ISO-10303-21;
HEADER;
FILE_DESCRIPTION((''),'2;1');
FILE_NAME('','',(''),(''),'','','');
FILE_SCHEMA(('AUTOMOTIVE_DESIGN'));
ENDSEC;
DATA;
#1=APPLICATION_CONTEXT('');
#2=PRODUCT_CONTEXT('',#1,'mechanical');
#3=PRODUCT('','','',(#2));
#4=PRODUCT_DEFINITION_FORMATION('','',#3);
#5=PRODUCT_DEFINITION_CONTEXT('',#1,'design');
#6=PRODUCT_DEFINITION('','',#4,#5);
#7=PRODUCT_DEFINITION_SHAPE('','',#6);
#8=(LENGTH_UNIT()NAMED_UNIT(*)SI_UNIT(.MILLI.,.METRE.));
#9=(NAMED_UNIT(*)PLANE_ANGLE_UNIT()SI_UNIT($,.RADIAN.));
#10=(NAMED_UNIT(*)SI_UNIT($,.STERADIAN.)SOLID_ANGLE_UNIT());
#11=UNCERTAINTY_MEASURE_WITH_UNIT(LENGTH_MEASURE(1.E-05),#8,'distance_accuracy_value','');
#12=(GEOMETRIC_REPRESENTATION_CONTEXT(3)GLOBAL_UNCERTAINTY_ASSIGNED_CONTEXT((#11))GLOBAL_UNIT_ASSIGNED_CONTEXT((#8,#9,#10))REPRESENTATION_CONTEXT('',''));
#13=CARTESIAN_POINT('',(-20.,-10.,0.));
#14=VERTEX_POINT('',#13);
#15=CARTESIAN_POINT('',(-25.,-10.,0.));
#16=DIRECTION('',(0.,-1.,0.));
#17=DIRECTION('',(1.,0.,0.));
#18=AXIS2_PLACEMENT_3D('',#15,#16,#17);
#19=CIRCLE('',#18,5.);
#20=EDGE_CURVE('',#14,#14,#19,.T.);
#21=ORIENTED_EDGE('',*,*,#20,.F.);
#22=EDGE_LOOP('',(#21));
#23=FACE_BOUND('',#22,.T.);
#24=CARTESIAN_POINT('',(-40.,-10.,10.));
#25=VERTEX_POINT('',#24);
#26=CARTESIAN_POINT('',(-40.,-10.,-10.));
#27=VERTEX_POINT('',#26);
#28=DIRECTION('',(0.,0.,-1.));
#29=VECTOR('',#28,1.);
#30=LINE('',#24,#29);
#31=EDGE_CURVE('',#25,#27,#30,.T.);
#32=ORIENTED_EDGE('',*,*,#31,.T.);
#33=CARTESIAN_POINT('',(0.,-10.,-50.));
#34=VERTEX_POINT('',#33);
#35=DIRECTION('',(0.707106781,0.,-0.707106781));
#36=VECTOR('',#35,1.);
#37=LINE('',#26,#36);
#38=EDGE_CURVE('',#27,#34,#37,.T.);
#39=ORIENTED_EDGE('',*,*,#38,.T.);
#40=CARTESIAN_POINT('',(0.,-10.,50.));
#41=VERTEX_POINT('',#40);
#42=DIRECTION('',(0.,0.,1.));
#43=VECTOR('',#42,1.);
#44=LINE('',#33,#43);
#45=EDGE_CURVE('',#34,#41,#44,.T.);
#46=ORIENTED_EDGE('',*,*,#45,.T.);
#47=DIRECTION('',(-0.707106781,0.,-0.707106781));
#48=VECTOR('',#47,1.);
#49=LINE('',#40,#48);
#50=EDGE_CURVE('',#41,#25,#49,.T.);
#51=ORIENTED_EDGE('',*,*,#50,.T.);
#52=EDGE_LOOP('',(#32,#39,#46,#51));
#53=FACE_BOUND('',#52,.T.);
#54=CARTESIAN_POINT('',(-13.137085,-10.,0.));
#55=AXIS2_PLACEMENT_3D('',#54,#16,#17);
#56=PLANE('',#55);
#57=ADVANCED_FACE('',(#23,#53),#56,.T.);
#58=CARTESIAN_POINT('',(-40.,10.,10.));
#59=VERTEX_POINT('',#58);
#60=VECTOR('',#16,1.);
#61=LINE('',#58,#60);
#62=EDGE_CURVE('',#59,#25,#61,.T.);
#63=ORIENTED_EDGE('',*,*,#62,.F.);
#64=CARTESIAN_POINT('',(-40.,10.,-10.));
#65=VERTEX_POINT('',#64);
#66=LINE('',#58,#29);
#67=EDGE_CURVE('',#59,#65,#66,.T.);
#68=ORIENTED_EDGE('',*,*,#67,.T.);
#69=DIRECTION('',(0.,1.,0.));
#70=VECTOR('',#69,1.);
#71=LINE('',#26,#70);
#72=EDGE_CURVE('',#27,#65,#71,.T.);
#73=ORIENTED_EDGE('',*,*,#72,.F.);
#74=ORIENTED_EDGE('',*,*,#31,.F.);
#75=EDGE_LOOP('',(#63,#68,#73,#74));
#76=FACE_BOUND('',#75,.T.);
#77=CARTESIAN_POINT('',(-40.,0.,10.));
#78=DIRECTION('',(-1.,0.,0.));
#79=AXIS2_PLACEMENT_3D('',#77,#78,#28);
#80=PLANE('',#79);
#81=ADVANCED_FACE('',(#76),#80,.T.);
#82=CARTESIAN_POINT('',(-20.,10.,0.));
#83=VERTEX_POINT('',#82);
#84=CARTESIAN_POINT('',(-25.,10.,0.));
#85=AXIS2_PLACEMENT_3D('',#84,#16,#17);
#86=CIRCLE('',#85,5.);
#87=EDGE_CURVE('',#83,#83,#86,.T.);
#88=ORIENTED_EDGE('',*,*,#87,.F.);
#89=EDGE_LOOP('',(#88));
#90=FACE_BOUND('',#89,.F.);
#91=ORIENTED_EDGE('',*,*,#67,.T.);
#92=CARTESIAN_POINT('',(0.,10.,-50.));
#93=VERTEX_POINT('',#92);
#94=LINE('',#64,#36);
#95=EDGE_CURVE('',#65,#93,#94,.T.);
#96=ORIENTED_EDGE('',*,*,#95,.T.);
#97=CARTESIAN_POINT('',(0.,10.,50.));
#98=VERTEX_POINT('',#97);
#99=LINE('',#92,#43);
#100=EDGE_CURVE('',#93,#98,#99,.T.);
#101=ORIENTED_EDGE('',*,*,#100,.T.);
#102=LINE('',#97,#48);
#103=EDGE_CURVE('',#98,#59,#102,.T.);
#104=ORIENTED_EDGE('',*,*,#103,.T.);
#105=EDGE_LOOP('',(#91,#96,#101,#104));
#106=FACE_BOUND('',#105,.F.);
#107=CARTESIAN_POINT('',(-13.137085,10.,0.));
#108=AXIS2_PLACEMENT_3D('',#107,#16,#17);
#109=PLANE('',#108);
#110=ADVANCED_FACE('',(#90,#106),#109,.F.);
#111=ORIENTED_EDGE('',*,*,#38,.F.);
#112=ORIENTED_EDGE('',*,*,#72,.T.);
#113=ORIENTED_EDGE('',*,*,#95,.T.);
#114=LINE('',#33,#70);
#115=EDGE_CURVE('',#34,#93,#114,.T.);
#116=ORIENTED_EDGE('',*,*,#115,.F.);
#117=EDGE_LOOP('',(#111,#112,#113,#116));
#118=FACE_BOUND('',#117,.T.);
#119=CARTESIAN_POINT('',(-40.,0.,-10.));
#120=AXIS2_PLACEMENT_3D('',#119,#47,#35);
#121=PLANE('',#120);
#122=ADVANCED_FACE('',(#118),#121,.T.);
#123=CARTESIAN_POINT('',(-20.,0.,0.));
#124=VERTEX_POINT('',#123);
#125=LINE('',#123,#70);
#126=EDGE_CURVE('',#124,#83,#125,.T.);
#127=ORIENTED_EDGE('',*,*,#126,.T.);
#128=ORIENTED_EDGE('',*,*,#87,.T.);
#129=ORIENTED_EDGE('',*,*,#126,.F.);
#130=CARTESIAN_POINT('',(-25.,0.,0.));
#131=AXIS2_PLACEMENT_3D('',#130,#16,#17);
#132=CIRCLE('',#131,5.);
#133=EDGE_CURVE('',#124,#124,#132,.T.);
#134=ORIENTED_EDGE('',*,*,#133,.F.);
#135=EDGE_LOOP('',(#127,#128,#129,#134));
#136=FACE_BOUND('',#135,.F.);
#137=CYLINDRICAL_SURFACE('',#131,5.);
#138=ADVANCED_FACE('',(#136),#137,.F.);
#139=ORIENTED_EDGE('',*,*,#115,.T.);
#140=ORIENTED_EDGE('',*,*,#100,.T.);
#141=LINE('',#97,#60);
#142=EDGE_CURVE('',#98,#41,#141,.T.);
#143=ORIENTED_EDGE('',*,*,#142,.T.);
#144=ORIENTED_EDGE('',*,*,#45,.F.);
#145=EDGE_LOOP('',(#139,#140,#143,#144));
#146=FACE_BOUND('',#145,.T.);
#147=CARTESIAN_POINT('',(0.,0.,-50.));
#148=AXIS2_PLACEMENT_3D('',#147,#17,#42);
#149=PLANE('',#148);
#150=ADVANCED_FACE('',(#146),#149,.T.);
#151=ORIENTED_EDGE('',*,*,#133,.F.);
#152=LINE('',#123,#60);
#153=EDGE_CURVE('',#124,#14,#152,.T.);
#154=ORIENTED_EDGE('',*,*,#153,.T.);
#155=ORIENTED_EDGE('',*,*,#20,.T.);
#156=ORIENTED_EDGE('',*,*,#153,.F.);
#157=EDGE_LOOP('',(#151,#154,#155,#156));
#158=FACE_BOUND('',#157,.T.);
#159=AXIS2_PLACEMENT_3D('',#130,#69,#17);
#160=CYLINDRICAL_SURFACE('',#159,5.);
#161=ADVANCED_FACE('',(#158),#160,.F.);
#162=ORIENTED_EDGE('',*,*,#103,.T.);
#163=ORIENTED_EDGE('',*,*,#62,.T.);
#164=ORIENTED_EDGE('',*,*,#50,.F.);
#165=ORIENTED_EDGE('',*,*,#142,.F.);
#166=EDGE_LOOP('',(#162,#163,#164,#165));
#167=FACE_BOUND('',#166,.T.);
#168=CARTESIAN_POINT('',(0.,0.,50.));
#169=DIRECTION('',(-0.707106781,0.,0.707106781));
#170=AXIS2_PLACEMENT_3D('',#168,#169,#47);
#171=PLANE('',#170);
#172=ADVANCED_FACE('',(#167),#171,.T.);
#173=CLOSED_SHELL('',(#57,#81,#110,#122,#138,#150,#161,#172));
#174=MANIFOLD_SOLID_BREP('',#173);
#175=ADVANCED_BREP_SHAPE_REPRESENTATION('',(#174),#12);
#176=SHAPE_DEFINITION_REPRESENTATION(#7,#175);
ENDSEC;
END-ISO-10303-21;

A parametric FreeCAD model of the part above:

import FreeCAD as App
import Part
import Sketcher
from FreeCAD import Vector
Q = App.Units.Quantity


def add_polygon(sketch, points):
    """Adds a closed chain of lines whose ends are joined by coincident constraints."""
    first, n = sketch.GeometryCount, len(points)
    for a, b in zip(points, points[1:] + points[:1]):
        sketch.addGeometry(Part.LineSegment(App.Vector(*a, 0), App.Vector(*b, 0)), False)
    for i in range(n):
        sketch.addConstraint(Sketcher.Constraint("Coincident", first + i, 2, first + (i + 1) % n, 1))

doc = App.newDocument("Part")
params = doc.addObject("Spreadsheet::Sheet", "Params")
for row, (alias, value) in enumerate([
    ("sketch1_diameter", "10 mm"),
    ("sketch1_height", "100 mm"),
    ("sketch1_height2", "20 mm"),
    ("pad1_length", "10 mm"),
    ("pad1_length2", "10 mm"),
], start=1):
    params.set(f"A{row}", alias)
    params.set(f"B{row}", "=" + value)
    params.setAlias(f"B{row}", alias)

body = doc.addObject("PartDesign::Body", "Body")

# Sketch on XZ plane
sketch1 = doc.addObject("Sketcher::SketchObject", "Sketch")
body.addObject(sketch1)
sketch1.AttachmentSupport = (doc.XZ_Plane, [""])
sketch1.MapMode = "FlatFace"
add_polygon(sketch1, [(0, -50), (0, 50), (-40, 10), (-40, -10)])  # lines 0-3
sketch1.addGeometry(Part.Circle(Vector(-25, 0, 0), Vector(0, 0, 1), 5), False)  # 4
sketch1.addConstraint(Sketcher.Constraint("Vertical", 0))
sketch1.addConstraint(Sketcher.Constraint("Vertical", 2))
sketch1.addConstraint(Sketcher.Constraint("Symmetric", 0, 2, 3, 2, -1, 1))
sketch1.addConstraint(Sketcher.Constraint("PointOnObject", 4, 3, -1))
sketch1.addConstraint(Sketcher.Constraint("Perpendicular", 1, 3))
sketch1.addConstraint(Sketcher.Constraint("Equal", 1, 3))
sketch1.addConstraint(Sketcher.Constraint("Diameter", 4, Q("10 mm")))
sketch1.addConstraint(Sketcher.Constraint("DistanceY", 0, 1, 0, 2, Q("100 mm")))
sketch1.addConstraint(Sketcher.Constraint("DistanceY", 2, 2, 2, 1, Q("20 mm")))
sketch1.addConstraint(Sketcher.Constraint("DistanceX", 4, 3, -1, 1, Q("25 mm")))
sketch1.setExpression("Constraints[10]", "Params.sketch1_diameter")
sketch1.setExpression("Constraints[11]", "Params.sketch1_height")
sketch1.setExpression("Constraints[12]", "Params.sketch1_height2")
pad1 = doc.addObject("PartDesign::Pad", "Pad")
body.addObject(pad1)
pad1.Profile = sketch1
pad1.Type = "TwoLengths"
pad1.setExpression("Length", "Params.pad1_length")
pad1.setExpression("Length2", "Params.pad1_length2")

doc.recompute()
